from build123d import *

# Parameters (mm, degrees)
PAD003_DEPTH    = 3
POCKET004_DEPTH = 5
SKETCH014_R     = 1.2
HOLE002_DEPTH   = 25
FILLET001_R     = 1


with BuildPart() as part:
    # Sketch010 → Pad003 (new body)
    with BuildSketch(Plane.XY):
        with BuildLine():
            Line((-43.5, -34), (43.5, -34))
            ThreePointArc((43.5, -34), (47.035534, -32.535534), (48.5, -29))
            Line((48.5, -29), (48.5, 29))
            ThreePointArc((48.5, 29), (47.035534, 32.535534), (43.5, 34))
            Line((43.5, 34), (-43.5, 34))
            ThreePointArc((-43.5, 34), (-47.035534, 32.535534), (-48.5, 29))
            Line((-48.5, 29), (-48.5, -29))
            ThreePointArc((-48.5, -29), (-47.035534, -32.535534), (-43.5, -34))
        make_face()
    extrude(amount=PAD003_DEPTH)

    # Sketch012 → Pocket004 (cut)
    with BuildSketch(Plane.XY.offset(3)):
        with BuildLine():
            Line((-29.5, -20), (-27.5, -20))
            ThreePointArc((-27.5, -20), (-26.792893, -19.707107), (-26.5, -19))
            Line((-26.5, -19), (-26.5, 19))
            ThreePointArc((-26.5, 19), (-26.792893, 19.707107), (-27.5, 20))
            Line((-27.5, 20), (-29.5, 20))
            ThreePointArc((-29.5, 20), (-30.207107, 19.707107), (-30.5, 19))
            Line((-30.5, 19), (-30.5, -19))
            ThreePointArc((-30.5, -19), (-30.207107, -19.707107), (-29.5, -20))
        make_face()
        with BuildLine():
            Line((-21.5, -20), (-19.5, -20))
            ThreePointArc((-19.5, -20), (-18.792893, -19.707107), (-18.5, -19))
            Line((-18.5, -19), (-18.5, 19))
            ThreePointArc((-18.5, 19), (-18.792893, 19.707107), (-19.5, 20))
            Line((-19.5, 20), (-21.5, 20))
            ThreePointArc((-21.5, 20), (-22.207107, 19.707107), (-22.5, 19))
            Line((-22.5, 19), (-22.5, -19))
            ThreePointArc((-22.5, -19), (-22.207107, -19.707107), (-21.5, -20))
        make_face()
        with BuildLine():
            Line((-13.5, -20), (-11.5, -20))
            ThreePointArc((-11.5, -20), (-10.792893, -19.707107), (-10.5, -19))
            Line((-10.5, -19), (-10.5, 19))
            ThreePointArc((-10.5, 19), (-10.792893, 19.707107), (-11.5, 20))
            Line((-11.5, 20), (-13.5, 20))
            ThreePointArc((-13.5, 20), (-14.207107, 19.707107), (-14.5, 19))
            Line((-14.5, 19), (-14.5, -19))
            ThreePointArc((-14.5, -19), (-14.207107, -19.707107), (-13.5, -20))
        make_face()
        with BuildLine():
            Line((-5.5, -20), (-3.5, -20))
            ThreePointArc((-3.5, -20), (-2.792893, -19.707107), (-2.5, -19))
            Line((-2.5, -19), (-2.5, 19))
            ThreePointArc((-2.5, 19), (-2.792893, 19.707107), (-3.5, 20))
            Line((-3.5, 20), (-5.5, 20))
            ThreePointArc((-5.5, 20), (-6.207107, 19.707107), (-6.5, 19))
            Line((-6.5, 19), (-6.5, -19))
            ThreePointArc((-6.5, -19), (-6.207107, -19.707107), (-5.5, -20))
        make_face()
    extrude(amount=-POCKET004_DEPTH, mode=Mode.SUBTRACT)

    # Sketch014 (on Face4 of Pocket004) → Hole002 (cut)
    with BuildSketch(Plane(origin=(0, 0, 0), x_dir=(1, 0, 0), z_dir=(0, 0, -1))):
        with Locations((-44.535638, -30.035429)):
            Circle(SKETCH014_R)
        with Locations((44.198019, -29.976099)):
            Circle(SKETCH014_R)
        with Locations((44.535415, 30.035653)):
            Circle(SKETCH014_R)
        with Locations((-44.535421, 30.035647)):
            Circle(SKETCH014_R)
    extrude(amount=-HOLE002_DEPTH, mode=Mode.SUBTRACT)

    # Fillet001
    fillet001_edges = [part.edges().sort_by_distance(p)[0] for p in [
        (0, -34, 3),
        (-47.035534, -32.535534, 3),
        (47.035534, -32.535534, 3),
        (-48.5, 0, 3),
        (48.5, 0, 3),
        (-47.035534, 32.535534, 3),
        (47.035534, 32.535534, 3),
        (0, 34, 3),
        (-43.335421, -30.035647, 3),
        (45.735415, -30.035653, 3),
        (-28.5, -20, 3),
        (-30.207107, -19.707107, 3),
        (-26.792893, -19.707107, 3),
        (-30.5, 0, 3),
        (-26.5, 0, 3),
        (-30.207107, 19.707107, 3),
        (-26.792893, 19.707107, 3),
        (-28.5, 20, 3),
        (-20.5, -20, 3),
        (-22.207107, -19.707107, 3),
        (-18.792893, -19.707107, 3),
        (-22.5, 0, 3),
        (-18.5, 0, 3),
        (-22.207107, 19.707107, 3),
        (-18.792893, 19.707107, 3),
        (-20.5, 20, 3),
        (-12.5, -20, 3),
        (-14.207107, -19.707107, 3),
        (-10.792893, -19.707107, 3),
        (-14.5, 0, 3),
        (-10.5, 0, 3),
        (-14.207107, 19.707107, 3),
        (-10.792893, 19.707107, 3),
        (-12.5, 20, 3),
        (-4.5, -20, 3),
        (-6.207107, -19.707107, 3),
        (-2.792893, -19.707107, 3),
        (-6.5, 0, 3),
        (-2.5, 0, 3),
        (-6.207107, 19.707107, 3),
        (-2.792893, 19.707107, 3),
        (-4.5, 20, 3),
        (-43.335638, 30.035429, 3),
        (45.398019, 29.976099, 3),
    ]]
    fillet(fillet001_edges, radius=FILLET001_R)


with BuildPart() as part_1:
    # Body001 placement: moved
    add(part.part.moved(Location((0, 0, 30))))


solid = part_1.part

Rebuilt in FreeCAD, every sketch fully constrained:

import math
import FreeCAD as App
import Part
import Sketcher
Q = App.Units.Quantity


def edges_at(feature, points):
    """Names of the edges that pass closest to the given points."""
    edges = feature.Shape.Edges
    near = lambda p: min(range(len(edges)), key=lambda i: edges[i].distToShape(Part.Vertex(*p))[0])
    return sorted({f"Edge{near(p) + 1}" for p in points})

doc = App.newDocument("Part")
body = doc.addObject("PartDesign::Body", "Body")

# Sketch on XY plane
sketch1 = body.newObject("Sketcher::SketchObject", "Sketch")
sketch1.AttachmentSupport = (doc.getObject("XY_Plane"), [""])
sketch1.MapMode = "FlatFace"
sketch1.addGeometry(Part.LineSegment(App.Vector(-43.5, -34, 0), App.Vector(43.5, -34, 0)), False)
sketch1.addGeometry(Part.ArcOfCircle(Part.Circle(App.Vector(43.5, -29, 0), App.Vector(0, 0, 1), 5), math.radians(-90.000004), math.radians(0.000004)), False)
sketch1.addGeometry(Part.LineSegment(App.Vector(48.5, -29, 0), App.Vector(48.5, 29, 0)), False)
sketch1.addGeometry(Part.ArcOfCircle(Part.Circle(App.Vector(43.5, 29, 0), App.Vector(0, 0, 1), 5), math.radians(-0.000004), math.radians(90.000004)), False)
sketch1.addGeometry(Part.LineSegment(App.Vector(43.5, 34, 0), App.Vector(-43.5, 34, 0)), False)
sketch1.addGeometry(Part.ArcOfCircle(Part.Circle(App.Vector(-43.5, 29, 0), App.Vector(0, 0, 1), 5), math.radians(89.999996), math.radians(180.000004)), False)
sketch1.addGeometry(Part.LineSegment(App.Vector(-48.5, 29, 0), App.Vector(-48.5, -29, 0)), False)
sketch1.addGeometry(Part.ArcOfCircle(Part.Circle(App.Vector(-43.5, -29, 0), App.Vector(0, 0, 1), 5), math.radians(179.999996), math.radians(270.000004)), False)
sketch1.addConstraint(Sketcher.Constraint("Tangent", 0, 2, 1, 1))
sketch1.addConstraint(Sketcher.Constraint("Tangent", 1, 2, 2, 1))
sketch1.addConstraint(Sketcher.Constraint("Tangent", 2, 2, 3, 1))
sketch1.addConstraint(Sketcher.Constraint("Tangent", 3, 2, 4, 1))
sketch1.addConstraint(Sketcher.Constraint("Tangent", 4, 2, 5, 1))
sketch1.addConstraint(Sketcher.Constraint("Tangent", 5, 2, 6, 1))
sketch1.addConstraint(Sketcher.Constraint("Tangent", 6, 2, 7, 1))
sketch1.addConstraint(Sketcher.Constraint("Tangent", 7, 2, 0, 1))
sketch1.addConstraint(Sketcher.Constraint("Horizontal", 0))
sketch1.addConstraint(Sketcher.Constraint("Vertical", 2))
sketch1.addConstraint(Sketcher.Constraint("Horizontal", 4))
sketch1.addConstraint(Sketcher.Constraint("Vertical", 6))
sketch1.addConstraint(Sketcher.Constraint("Equal", 1, 3))
sketch1.addConstraint(Sketcher.Constraint("Equal", 3, 5))
sketch1.addConstraint(Sketcher.Constraint("Equal", 5, 7))
sketch1.addConstraint(Sketcher.Constraint("Symmetric", 1, 3, 5, 3, -1, 1))
sketch1.addConstraint(Sketcher.Constraint("Radius", 1, Q("5 mm")))
sketch1.addConstraint(Sketcher.Constraint("DistanceX", 0, 1, 0, 2, Q("87 mm")))
sketch1.addConstraint(Sketcher.Constraint("DistanceY", 2, 1, 2, 2, Q("58 mm")))
pad1 = body.newObject("PartDesign::Pad", "Pad")
pad1.Profile = sketch1
pad1.Length = 3

# Sketch on XY plane
sketch2 = body.newObject("Sketcher::SketchObject", "Sketch001")
sketch2.AttachmentSupport = (doc.getObject("XY_Plane"), [""])
sketch2.MapMode = "FlatFace"
sketch2.AttachmentOffset = App.Placement(App.Vector(0, 0, 3), App.Rotation())
sketch2.addGeometry(Part.LineSegment(App.Vector(-29.5, -20, 0), App.Vector(-27.5, -20, 0)), False)
sketch2.addGeometry(Part.ArcOfCircle(Part.Circle(App.Vector(-27.499999, -19.000001, 0), App.Vector(0, 0, 1), 0.999999), math.radians(-90.000043), math.radians(0.000043)), False)
sketch2.addGeometry(Part.LineSegment(App.Vector(-26.5, -19, 0), App.Vector(-26.5, 19, 0)), False)
sketch2.addGeometry(Part.ArcOfCircle(Part.Circle(App.Vector(-27.499999, 19.000001, 0), App.Vector(0, 0, 1), 0.999999), math.radians(-0.000043), math.radians(90.000043)), False)
sketch2.addGeometry(Part.LineSegment(App.Vector(-27.5, 20, 0), App.Vector(-29.5, 20, 0)), False)
sketch2.addGeometry(Part.ArcOfCircle(Part.Circle(App.Vector(-29.500001, 19.000001, 0), App.Vector(0, 0, 1), 0.999999), math.radians(89.999957), math.radians(180.000043)), False)
sketch2.addGeometry(Part.LineSegment(App.Vector(-30.5, 19, 0), App.Vector(-30.5, -19, 0)), False)
sketch2.addGeometry(Part.ArcOfCircle(Part.Circle(App.Vector(-29.500001, -19.000001, 0), App.Vector(0, 0, 1), 0.999999), math.radians(179.999957), math.radians(270.000043)), False)
sketch2.addGeometry(Part.LineSegment(App.Vector(-21.5, -20, 0), App.Vector(-19.5, -20, 0)), False)
sketch2.addGeometry(Part.ArcOfCircle(Part.Circle(App.Vector(-19.499999, -19.000001, 0), App.Vector(0, 0, 1), 0.999999), math.radians(-90.000043), math.radians(0.000043)), False)
sketch2.addGeometry(Part.LineSegment(App.Vector(-18.5, -19, 0), App.Vector(-18.5, 19, 0)), False)
sketch2.addGeometry(Part.ArcOfCircle(Part.Circle(App.Vector(-19.499999, 19.000001, 0), App.Vector(0, 0, 1), 0.999999), math.radians(-0.000043), math.radians(90.000043)), False)
sketch2.addGeometry(Part.LineSegment(App.Vector(-19.5, 20, 0), App.Vector(-21.5, 20, 0)), False)
sketch2.addGeometry(Part.ArcOfCircle(Part.Circle(App.Vector(-21.500001, 19.000001, 0), App.Vector(0, 0, 1), 0.999999), math.radians(89.999957), math.radians(180.000043)), False)
sketch2.addGeometry(Part.LineSegment(App.Vector(-22.5, 19, 0), App.Vector(-22.5, -19, 0)), False)
sketch2.addGeometry(Part.ArcOfCircle(Part.Circle(App.Vector(-21.500001, -19.000001, 0), App.Vector(0, 0, 1), 0.999999), math.radians(179.999957), math.radians(270.000043)), False)
sketch2.addGeometry(Part.LineSegment(App.Vector(-13.5, -20, 0), App.Vector(-11.5, -20, 0)), False)
sketch2.addGeometry(Part.ArcOfCircle(Part.Circle(App.Vector(-11.499999, -19.000001, 0), App.Vector(0, 0, 1), 0.999999), math.radians(-90.000043), math.radians(0.000043)), False)
sketch2.addGeometry(Part.LineSegment(App.Vector(-10.5, -19, 0), App.Vector(-10.5, 19, 0)), False)
sketch2.addGeometry(Part.ArcOfCircle(Part.Circle(App.Vector(-11.499999, 19.000001, 0), App.Vector(0, 0, 1), 0.999999), math.radians(-0.000043), math.radians(90.000043)), False)
sketch2.addGeometry(Part.LineSegment(App.Vector(-11.5, 20, 0), App.Vector(-13.5, 20, 0)), False)
sketch2.addGeometry(Part.ArcOfCircle(Part.Circle(App.Vector(-13.500001, 19.000001, 0), App.Vector(0, 0, 1), 0.999999), math.radians(89.999957), math.radians(180.000043)), False)
sketch2.addGeometry(Part.LineSegment(App.Vector(-14.5, 19, 0), App.Vector(-14.5, -19, 0)), False)
sketch2.addGeometry(Part.ArcOfCircle(Part.Circle(App.Vector(-13.500001, -19.000001, 0), App.Vector(0, 0, 1), 0.999999), math.radians(179.999957), math.radians(270.000043)), False)
sketch2.addGeometry(Part.LineSegment(App.Vector(-5.5, -20, 0), App.Vector(-3.5, -20, 0)), False)
sketch2.addGeometry(Part.ArcOfCircle(Part.Circle(App.Vector(-3.499999, -19.000001, 0), App.Vector(0, 0, 1), 0.999999), math.radians(-90.000043), math.radians(0.000043)), False)
sketch2.addGeometry(Part.LineSegment(App.Vector(-2.5, -19, 0), App.Vector(-2.5, 19, 0)), False)
sketch2.addGeometry(Part.ArcOfCircle(Part.Circle(App.Vector(-3.499999, 19.000001, 0), App.Vector(0, 0, 1), 0.999999), math.radians(-0.000043), math.radians(90.000043)), False)
sketch2.addGeometry(Part.LineSegment(App.Vector(-3.5, 20, 0), App.Vector(-5.5, 20, 0)), False)
sketch2.addGeometry(Part.ArcOfCircle(Part.Circle(App.Vector(-5.500001, 19.000001, 0), App.Vector(0, 0, 1), 0.999999), math.radians(89.999957), math.radians(180.000043)), False)
sketch2.addGeometry(Part.LineSegment(App.Vector(-6.5, 19, 0), App.Vector(-6.5, -19, 0)), False)
sketch2.addGeometry(Part.ArcOfCircle(Part.Circle(App.Vector(-5.500001, -19.000001, 0), App.Vector(0, 0, 1), 0.999999), math.radians(179.999957), math.radians(270.000043)), False)
sketch2.addConstraint(Sketcher.Constraint("Tangent", 0, 2, 1, 1))
sketch2.addConstraint(Sketcher.Constraint("Tangent", 1, 2, 2, 1))
sketch2.addConstraint(Sketcher.Constraint("Tangent", 2, 2, 3, 1))
sketch2.addConstraint(Sketcher.Constraint("Tangent", 3, 2, 4, 1))
sketch2.addConstraint(Sketcher.Constraint("Tangent", 4, 2, 5, 1))
sketch2.addConstraint(Sketcher.Constraint("Tangent", 5, 2, 6, 1))
sketch2.addConstraint(Sketcher.Constraint("Tangent", 6, 2, 7, 1))
sketch2.addConstraint(Sketcher.Constraint("Tangent", 7, 2, 0, 1))
sketch2.addConstraint(Sketcher.Constraint("Tangent", 8, 2, 9, 1))
sketch2.addConstraint(Sketcher.Constraint("Tangent", 9, 2, 10, 1))
sketch2.addConstraint(Sketcher.Constraint("Tangent", 10, 2, 11, 1))
sketch2.addConstraint(Sketcher.Constraint("Tangent", 11, 2, 12, 1))
sketch2.addConstraint(Sketcher.Constraint("Tangent", 12, 2, 13, 1))
sketch2.addConstraint(Sketcher.Constraint("Tangent", 13, 2, 14, 1))
sketch2.addConstraint(Sketcher.Constraint("Tangent", 14, 2, 15, 1))
sketch2.addConstraint(Sketcher.Constraint("Tangent", 15, 2, 8, 1))
sketch2.addConstraint(Sketcher.Constraint("Tangent", 16, 2, 17, 1))
sketch2.addConstraint(Sketcher.Constraint("Tangent", 17, 2, 18, 1))
sketch2.addConstraint(Sketcher.Constraint("Tangent", 18, 2, 19, 1))
sketch2.addConstraint(Sketcher.Constraint("Tangent", 19, 2, 20, 1))
sketch2.addConstraint(Sketcher.Constraint("Tangent", 20, 2, 21, 1))
sketch2.addConstraint(Sketcher.Constraint("Tangent", 21, 2, 22, 1))
sketch2.addConstraint(Sketcher.Constraint("Tangent", 22, 2, 23, 1))
sketch2.addConstraint(Sketcher.Constraint("Tangent", 23, 2, 16, 1))
sketch2.addConstraint(Sketcher.Constraint("Tangent", 24, 2, 25, 1))
sketch2.addConstraint(Sketcher.Constraint("Tangent", 25, 2, 26, 1))
sketch2.addConstraint(Sketcher.Constraint("Tangent", 26, 2, 27, 1))
sketch2.addConstraint(Sketcher.Constraint("Tangent", 27, 2, 28, 1))
sketch2.addConstraint(Sketcher.Constraint("Tangent", 28, 2, 29, 1))
sketch2.addConstraint(Sketcher.Constraint("Tangent", 29, 2, 30, 1))
sketch2.addConstraint(Sketcher.Constraint("Tangent", 30, 2, 31, 1))
sketch2.addConstraint(Sketcher.Constraint("Tangent", 31, 2, 24, 1))
sketch2.addConstraint(Sketcher.Constraint("Horizontal", 0))
sketch2.addConstraint(Sketcher.Constraint("Vertical", 2))
sketch2.addConstraint(Sketcher.Constraint("Horizontal", 4))
sketch2.addConstraint(Sketcher.Constraint("Vertical", 6))
sketch2.addConstraint(Sketcher.Constraint("Horizontal", 8))
sketch2.addConstraint(Sketcher.Constraint("Vertical", 10))
sketch2.addConstraint(Sketcher.Constraint("Horizontal", 12))
sketch2.addConstraint(Sketcher.Constraint("Vertical", 14))
sketch2.addConstraint(Sketcher.Constraint("Horizontal", 16))
sketch2.addConstraint(Sketcher.Constraint("Vertical", 18))
sketch2.addConstraint(Sketcher.Constraint("Horizontal", 20))
sketch2.addConstraint(Sketcher.Constraint("Vertical", 22))
sketch2.addConstraint(Sketcher.Constraint("Horizontal", 24))
sketch2.addConstraint(Sketcher.Constraint("Vertical", 26))
sketch2.addConstraint(Sketcher.Constraint("Horizontal", 28))
sketch2.addConstraint(Sketcher.Constraint("Vertical", 30))
sketch2.addConstraint(Sketcher.Constraint("Equal", 1, 3))
sketch2.addConstraint(Sketcher.Constraint("Equal", 3, 5))
sketch2.addConstraint(Sketcher.Constraint("Equal", 5, 7))
sketch2.addConstraint(Sketcher.Constraint("Equal", 7, 9))
sketch2.addConstraint(Sketcher.Constraint("Equal", 9, 11))
sketch2.addConstraint(Sketcher.Constraint("Equal", 11, 13))
sketch2.addConstraint(Sketcher.Constraint("Equal", 13, 15))
sketch2.addConstraint(Sketcher.Constraint("Equal", 15, 17))
sketch2.addConstraint(Sketcher.Constraint("Equal", 17, 19))
sketch2.addConstraint(Sketcher.Constraint("Equal", 19, 21))
sketch2.addConstraint(Sketcher.Constraint("Equal", 21, 23))
sketch2.addConstraint(Sketcher.Constraint("Equal", 23, 25))
sketch2.addConstraint(Sketcher.Constraint("Equal", 25, 27))
sketch2.addConstraint(Sketcher.Constraint("Equal", 27, 29))
sketch2.addConstraint(Sketcher.Constraint("Equal", 29, 31))
sketch2.addConstraint(Sketcher.Constraint("Horizontal", 7, 3, 9, 3))
sketch2.addConstraint(Sketcher.Constraint("Horizontal", 5, 3, 11, 3))
sketch2.addConstraint(Sketcher.Constraint("Horizontal", 15, 3, 17, 3))
sketch2.addConstraint(Sketcher.Constraint("Horizontal", 13, 3, 19, 3))
sketch2.addConstraint(Sketcher.Constraint("Horizontal", 23, 3, 25, 3))
sketch2.addConstraint(Sketcher.Constraint("Horizontal", 21, 3, 27, 3))
sketch2.addConstraint(Sketcher.Constraint("Equal", 4, 8))
sketch2.addConstraint(Sketcher.Constraint("Equal", 12, 16))
sketch2.addConstraint(Sketcher.Constraint("Equal", 20, 24))
sketch2.addConstraint(Sketcher.Constraint("Radius", 1, Q("0.999999 mm")))
sketch2.addConstraint(Sketcher.Constraint("DistanceX", 0, 1, 0, 2, Q("2 mm")))
sketch2.addConstraint(Sketcher.Constraint("DistanceY", 2, 1, 2, 2, Q("38 mm")))
sketch2.addConstraint(Sketcher.Constraint("DistanceY", 1, 3, -1, 1, Q("19.000001 mm")))
sketch2.addConstraint(Sketcher.Constraint("DistanceX", 1, 3, 9, 3, Q("8 mm")))
sketch2.addConstraint(Sketcher.Constraint("DistanceX", 9, 3, 17, 3, Q("8 mm")))
sketch2.addConstraint(Sketcher.Constraint("DistanceX", 17, 3, 25, 3, Q("8 mm")))
sketch2.addConstraint(Sketcher.Constraint("DistanceX", 1, 3, -1, 1, Q("27.499999 mm")))
pocket1 = body.newObject("PartDesign::Pocket", "Pocket")
pocket1.Profile = sketch2
pocket1.Length = 5

# Sketch on XY plane
sketch3 = body.newObject("Sketcher::SketchObject", "Sketch002")
sketch3.AttachmentSupport = (doc.getObject("XY_Plane"), [""])
sketch3.MapMode = "FlatFace"
sketch3.addGeometry(Part.Circle(App.Vector(-44.535638, 30.035429, 0), App.Vector(0, 0, 1), 1.2), False)
sketch3.addGeometry(Part.Circle(App.Vector(44.198019, 29.976099, 0), App.Vector(0, 0, 1), 1.2), False)
sketch3.addGeometry(Part.Circle(App.Vector(44.535415, -30.035653, 0), App.Vector(0, 0, 1), 1.2), False)
sketch3.addGeometry(Part.Circle(App.Vector(-44.535421, -30.035647, 0), App.Vector(0, 0, 1), 1.2), False)
sketch3.addConstraint(Sketcher.Constraint("Equal", 0, 1))
sketch3.addConstraint(Sketcher.Constraint("Equal", 1, 2))
sketch3.addConstraint(Sketcher.Constraint("Equal", 2, 3))
sketch3.addConstraint(Sketcher.Constraint("Symmetric", 2, 3, 3, 3, -2))
sketch3.addConstraint(Sketcher.Constraint("Diameter", 0, Q("2.4 mm")))
sketch3.addConstraint(Sketcher.Constraint("DistanceY", -1, 1, 1, 3, Q("29.976099 mm")))
sketch3.addConstraint(Sketcher.Constraint("DistanceY", -1, 1, 0, 3, Q("30.035429 mm")))
sketch3.addConstraint(Sketcher.Constraint("DistanceX", -1, 1, 1, 3, Q("44.198019 mm")))
sketch3.addConstraint(Sketcher.Constraint("DistanceX", 3, 3, -1, 1, Q("44.535421 mm")))
sketch3.addConstraint(Sketcher.Constraint("DistanceX", 0, 3, -1, 1, Q("44.535638 mm")))
sketch3.addConstraint(Sketcher.Constraint("DistanceY", 2, 3, -1, 1, Q("30.035653 mm")))
pocket2 = body.newObject("PartDesign::Pocket", "Pocket001")
pocket2.Profile = sketch3
pocket2.Length = 25
pocket2.Reversed = True
doc.recompute()

fillet = body.newObject("PartDesign::Fillet", "Fillet")
fillet.Base = (pocket2, edges_at(pocket2, [
    (0, -34, 3),
    (-47.036, -32.536, 3),
    (47.036, -32.536, 3),
    (-48.5, 0, 3),
    (48.5, 0, 3),
    (-47.036, 32.536, 3),
    (47.036, 32.536, 3),
    (0, 34, 3),
    (-45.735, -30.036, 3),
    (43.335, -30.036, 3),
    (-28.5, -20, 3),
    (-30.207, -19.707, 3),
    (-26.793, -19.707, 3),
    (-30.5, 0, 3),
    (-26.5, 0, 3),
    (-30.207, 19.707, 3),
    (-26.793, 19.707, 3),
    (-28.5, 20, 3),
    (-20.5, -20, 3),
    (-22.207, -19.707, 3),
    (-18.793, -19.707, 3),
    (-22.5, 0, 3),
    (-18.5, 0, 3),
    (-22.207, 19.707, 3),
    (-18.793, 19.707, 3),
    (-20.5, 20, 3),
    (-12.5, -20, 3),
    (-14.207, -19.707, 3),
    (-10.793, -19.707, 3),
    (-14.5, 0, 3),
    (-10.5, 0, 3),
    (-14.207, 19.707, 3),
    (-10.793, 19.707, 3),
    (-12.5, 20, 3),
    (-4.5, -20, 3),
    (-6.207, -19.707, 3),
    (-2.793, -19.707, 3),
    (-6.5, 0, 3),
    (-2.5, 0, 3),
    (-6.207, 19.707, 3),
    (-2.793, 19.707, 3),
    (-4.5, 20, 3),
    (-45.736, 30.035, 3),
    (42.998, 29.976, 3),
]))
fillet.Radius = 1
body2 = doc.addObject("PartDesign::Body", "Body001")
doc.recompute()

body.Placement = App.Placement(App.Vector(0, 0, 30), App.Rotation(App.Vector(0, 0, 1), 0))
boolean = body2.newObject("PartDesign::Boolean", "Boolean")
boolean.Type = "Fuse"
boolean.addObjects([body])

doc.recompute()
